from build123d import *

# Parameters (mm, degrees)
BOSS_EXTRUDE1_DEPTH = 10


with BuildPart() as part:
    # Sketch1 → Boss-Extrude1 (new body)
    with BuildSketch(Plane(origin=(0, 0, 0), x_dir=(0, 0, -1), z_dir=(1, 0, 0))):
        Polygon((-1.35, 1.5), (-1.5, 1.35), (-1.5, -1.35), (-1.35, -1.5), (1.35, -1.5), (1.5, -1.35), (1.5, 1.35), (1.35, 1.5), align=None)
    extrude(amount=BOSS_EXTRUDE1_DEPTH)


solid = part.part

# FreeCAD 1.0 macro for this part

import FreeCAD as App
import Part
import Sketcher

V = App.Vector
Q = App.Units.Quantity

doc = App.newDocument("Part")
params = doc.addObject("Spreadsheet::Sheet", "Params")
for row, (alias, value) in enumerate([
    ("sketch1_width", "2.7 mm"),
    ("pad1_length", "10 mm"),
], start=1):
    params.set(f"A{row}", alias)
    params.set(f"B{row}", "=" + value)
    params.setAlias(f"B{row}", alias)

body = doc.addObject("PartDesign::Body", "Body")

# Sketch on YZ plane
sketch1 = body.newObject("Sketcher::SketchObject", "Sketch")
sketch1.AttachmentSupport = (doc.getObject("YZ_Plane"), [""])
sketch1.MapMode = "FlatFace"
sketch1.addGeometry([
    Part.LineSegment(V(1.5, 1.35, 0), V(1.35, 1.5, 0)),  # 0
    Part.LineSegment(V(1.35, 1.5, 0), V(-1.35, 1.5, 0)),  # 1
    Part.LineSegment(V(-1.35, 1.5, 0), V(-1.5, 1.35, 0)),  # 2
    Part.LineSegment(V(-1.5, 1.35, 0), V(-1.5, -1.35, 0)),  # 3
    Part.LineSegment(V(-1.5, -1.35, 0), V(-1.35, -1.5, 0)),  # 4
    Part.LineSegment(V(-1.35, -1.5, 0), V(1.35, -1.5, 0)),  # 5
    Part.LineSegment(V(1.35, -1.5, 0), V(1.5, -1.35, 0)),  # 6
    Part.LineSegment(V(1.5, -1.35, 0), V(1.5, 1.35, 0)),  # 7
], False)
sketch1.addConstraint([
    Sketcher.Constraint("Coincident", 0, 2, 1, 1),
    Sketcher.Constraint("Coincident", 1, 2, 2, 1),
    Sketcher.Constraint("Coincident", 2, 2, 3, 1),
    Sketcher.Constraint("Coincident", 3, 2, 4, 1),
    Sketcher.Constraint("Coincident", 4, 2, 5, 1),
    Sketcher.Constraint("Coincident", 5, 2, 6, 1),
    Sketcher.Constraint("Coincident", 6, 2, 7, 1),
    Sketcher.Constraint("Coincident", 7, 2, 0, 1),
    Sketcher.Constraint("Horizontal", 1),
    Sketcher.Constraint("Vertical", 3),
    Sketcher.Constraint("Horizontal", 5),
    Sketcher.Constraint("Vertical", 7),
    Sketcher.Constraint("Symmetric", 0, 2, 4, 2, -1, 1),
    Sketcher.Constraint("Symmetric", 2, 2, 6, 2, -1, 1),
    Sketcher.Constraint("Perpendicular", 0, 2),
    Sketcher.Constraint("Perpendicular", 2, 4),
    Sketcher.Constraint("Perpendicular", 4, 6),
    Sketcher.Constraint("Horizontal", 3, 2, 6, 2),
    Sketcher.Constraint("Vertical", 1, 2, 4, 2),
    Sketcher.Constraint("Equal", 5, 3),
    Sketcher.Constraint("DistanceX", 1, 2, 1, 1, Q("2.7 mm")),
    Sketcher.Constraint("DistanceY", 4, 2, 1, 2, Q("3 mm")),
])
sketch1.setExpression("Constraints[20]", "Params.sketch1_width")
pad1 = body.newObject("PartDesign::Pad", "Pad")
pad1.Profile = sketch1
pad1.setExpression("Length", "Params.pad1_length")

doc.recompute()
